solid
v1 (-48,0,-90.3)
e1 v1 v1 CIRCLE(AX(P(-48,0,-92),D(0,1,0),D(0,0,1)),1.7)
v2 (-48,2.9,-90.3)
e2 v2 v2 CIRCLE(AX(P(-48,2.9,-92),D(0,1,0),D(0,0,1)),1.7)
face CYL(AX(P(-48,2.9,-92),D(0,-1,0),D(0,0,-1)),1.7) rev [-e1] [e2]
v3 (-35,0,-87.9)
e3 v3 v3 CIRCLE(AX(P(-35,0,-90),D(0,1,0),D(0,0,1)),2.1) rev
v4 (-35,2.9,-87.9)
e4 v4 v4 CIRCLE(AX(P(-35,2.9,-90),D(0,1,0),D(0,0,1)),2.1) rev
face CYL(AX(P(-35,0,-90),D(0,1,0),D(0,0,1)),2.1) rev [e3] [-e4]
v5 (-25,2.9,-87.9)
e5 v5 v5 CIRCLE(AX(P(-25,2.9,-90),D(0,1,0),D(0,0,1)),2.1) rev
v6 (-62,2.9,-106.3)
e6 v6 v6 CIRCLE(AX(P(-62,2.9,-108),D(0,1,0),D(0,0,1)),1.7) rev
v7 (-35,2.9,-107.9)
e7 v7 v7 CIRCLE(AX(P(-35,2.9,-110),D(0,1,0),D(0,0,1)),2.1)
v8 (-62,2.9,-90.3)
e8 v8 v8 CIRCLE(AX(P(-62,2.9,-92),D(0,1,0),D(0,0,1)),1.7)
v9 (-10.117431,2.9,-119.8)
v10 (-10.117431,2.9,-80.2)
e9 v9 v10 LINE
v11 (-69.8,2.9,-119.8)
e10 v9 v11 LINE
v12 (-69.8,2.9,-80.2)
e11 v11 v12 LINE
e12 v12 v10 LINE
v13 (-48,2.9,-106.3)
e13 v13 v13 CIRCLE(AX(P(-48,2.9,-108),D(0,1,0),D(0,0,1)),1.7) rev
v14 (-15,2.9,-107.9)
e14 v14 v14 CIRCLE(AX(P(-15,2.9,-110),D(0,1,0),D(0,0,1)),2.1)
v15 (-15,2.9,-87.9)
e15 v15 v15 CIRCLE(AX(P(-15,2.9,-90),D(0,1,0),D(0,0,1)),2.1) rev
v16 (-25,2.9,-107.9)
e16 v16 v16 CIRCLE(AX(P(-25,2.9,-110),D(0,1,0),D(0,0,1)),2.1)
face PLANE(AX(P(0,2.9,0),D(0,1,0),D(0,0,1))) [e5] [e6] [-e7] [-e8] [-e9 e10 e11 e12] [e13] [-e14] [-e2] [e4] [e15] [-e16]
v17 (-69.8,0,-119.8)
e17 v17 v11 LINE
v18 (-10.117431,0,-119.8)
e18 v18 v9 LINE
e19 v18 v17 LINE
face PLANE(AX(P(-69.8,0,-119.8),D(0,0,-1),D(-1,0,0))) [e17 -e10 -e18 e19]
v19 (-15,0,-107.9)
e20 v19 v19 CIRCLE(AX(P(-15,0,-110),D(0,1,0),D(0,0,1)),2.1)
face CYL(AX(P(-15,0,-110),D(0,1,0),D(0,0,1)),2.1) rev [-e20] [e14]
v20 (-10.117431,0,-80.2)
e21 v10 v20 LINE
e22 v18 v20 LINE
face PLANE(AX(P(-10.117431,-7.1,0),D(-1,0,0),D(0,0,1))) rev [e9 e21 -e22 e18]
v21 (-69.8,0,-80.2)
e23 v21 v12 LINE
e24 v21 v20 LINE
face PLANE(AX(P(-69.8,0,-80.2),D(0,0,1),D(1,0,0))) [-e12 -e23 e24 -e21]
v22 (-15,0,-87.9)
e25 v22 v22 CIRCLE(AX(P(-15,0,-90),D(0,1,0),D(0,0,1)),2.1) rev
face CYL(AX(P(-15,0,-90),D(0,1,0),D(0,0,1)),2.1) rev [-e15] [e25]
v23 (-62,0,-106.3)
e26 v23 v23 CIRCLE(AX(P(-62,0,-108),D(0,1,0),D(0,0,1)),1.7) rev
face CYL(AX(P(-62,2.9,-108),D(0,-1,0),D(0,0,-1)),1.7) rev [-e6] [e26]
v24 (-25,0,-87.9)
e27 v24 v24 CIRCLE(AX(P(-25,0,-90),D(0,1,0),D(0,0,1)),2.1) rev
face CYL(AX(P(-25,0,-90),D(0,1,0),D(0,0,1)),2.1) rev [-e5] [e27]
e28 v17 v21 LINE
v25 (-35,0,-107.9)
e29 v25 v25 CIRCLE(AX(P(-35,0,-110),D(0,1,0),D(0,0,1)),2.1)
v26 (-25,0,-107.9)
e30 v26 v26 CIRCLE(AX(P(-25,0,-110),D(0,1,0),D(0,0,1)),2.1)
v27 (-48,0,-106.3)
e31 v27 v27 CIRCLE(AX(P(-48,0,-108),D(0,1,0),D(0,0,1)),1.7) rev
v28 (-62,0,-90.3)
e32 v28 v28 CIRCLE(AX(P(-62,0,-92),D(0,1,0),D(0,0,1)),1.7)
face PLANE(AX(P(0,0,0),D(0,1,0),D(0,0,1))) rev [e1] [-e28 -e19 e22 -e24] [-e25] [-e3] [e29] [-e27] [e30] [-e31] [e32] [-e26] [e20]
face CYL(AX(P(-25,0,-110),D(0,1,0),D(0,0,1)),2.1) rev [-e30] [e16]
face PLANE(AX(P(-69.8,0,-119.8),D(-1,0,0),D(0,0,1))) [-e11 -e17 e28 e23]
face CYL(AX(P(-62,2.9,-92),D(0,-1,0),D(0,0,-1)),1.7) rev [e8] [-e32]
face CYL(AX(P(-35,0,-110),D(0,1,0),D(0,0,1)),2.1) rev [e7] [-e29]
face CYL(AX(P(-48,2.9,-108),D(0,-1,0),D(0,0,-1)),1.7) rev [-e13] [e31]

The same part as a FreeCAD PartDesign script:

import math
import FreeCAD as App
import Part
import Sketcher

V = App.Vector


def add_polygon(sketch, points):
    """Adds a closed chain of lines whose ends are joined by coincident constraints."""
    first, n = sketch.GeometryCount, len(points)
    for a, b in zip(points, points[1:] + points[:1]):
        sketch.addGeometry(Part.LineSegment(App.Vector(*a, 0), App.Vector(*b, 0)), False)
    for i in range(n):
        sketch.addConstraint(Sketcher.Constraint("Coincident", first + i, 2, first + (i + 1) % n, 1))

doc = App.newDocument("Part")
body = doc.addObject("PartDesign::Body", "Body")

# Sketch on XZ plane
sketch1 = body.newObject("Sketcher::SketchObject", "Sketch")
sketch1.AttachmentSupport = (doc.getObject("XZ_Plane"), [""])
sketch1.MapMode = "FlatFace"
add_polygon(sketch1, [(-70, -80), (-20, -80), (-20, -120), (-70, -120)])  # lines 0-3
sketch1.addGeometry(Part.ArcOfCircle(Part.Circle(V(-48, -92, 0), V(0, 0, 1), 1.7), math.radians(90), math.radians(360)), False)  # 4
sketch1.addGeometry(Part.ArcOfCircle(Part.Circle(V(-48, -92, 0), V(0, 0, 1), 1.7), math.radians(0), math.radians(90)), False)  # 5
sketch1.addGeometry(Part.ArcOfCircle(Part.Circle(V(-62, -92, 0), V(0, 0, 1), 1.7), math.radians(180), math.radians(360)), False)  # 6
sketch1.addGeometry(Part.ArcOfCircle(Part.Circle(V(-62, -92, 0), V(0, 0, 1), 1.7), math.radians(0), math.radians(90)), False)  # 7
sketch1.addGeometry(Part.ArcOfCircle(Part.Circle(V(-62, -92, 0), V(0, 0, 1), 1.7), math.radians(90), math.radians(180)), False)  # 8
sketch1.addGeometry(Part.Circle(V(-62, -108, 0), V(0, 0, 1), 1.7), False)  # 9
sketch1.addGeometry(Part.Circle(V(-48, -108, 0), V(0, 0, 1), 1.7), False)  # 10
sketch1.addConstraint([
    Sketcher.Constraint("Tangent", 4, 1, 5, 2),
    Sketcher.Constraint("Coincident", 5, 1, 4, 2),
    Sketcher.Constraint("Tangent", 6, 2, 7, 1),
    Sketcher.Constraint("Tangent", 7, 2, 8, 1),
    Sketcher.Constraint("Tangent", 8, 2, 6, 1),
    Sketcher.Constraint("Horizontal", 0),
    Sketcher.Constraint("Vertical", 1),
    Sketcher.Constraint("Horizontal", 2),
    Sketcher.Constraint("Vertical", 3),
    Sketcher.Constraint("Equal", 5, 6),
    Sketcher.Constraint("Equal", 8, 9),
    Sketcher.Constraint("Equal", 9, 10),
    Sketcher.Constraint("Horizontal", 5, 3, 6, 3),
    Sketcher.Constraint("Horizontal", 9, 3, 10, 3),
    Sketcher.Constraint("Horizontal", 8, 3, 5, 1),
    Sketcher.Constraint("Horizontal", 5, 1, 6, 2),
    Sketcher.Constraint("Horizontal", 6, 2, 8, 2),
    Sketcher.Constraint("Vertical", 8, 3, 9, 3),
    Sketcher.Constraint("Vertical", 5, 3, 10, 3),
    Sketcher.Constraint("Vertical", 10, 3, 4, 1),
    Sketcher.Constraint("Vertical", 9, 3, 7, 2),
    Sketcher.Constraint("Diameter", 9, 3.4),
    Sketcher.Constraint("DistanceX", 0, 1, 0, 2, 50.0),
    Sketcher.Constraint("DistanceY", 1, 2, 1, 1, 40.0),
    Sketcher.Constraint("DistanceX", 4, 3, -1, 1, 48.0),
    Sketcher.Constraint("DistanceY", 4, 3, -1, 1, 92.0),
    Sketcher.Constraint("DistanceX", 6, 3, -1, 1, 62.0),
    Sketcher.Constraint("DistanceY", 9, 3, -1, 1, 108.0),
    Sketcher.Constraint("DistanceX", 0, 2, -1, 1, 20.0),
    Sketcher.Constraint("DistanceY", 0, 2, -1, 1, 80.0),
])
pad1 = body.newObject("PartDesign::Pad", "Pad")
pad1.Profile = sketch1
pad1.Length = 2.9
pad1.Reversed = True

# Sketch on XZ plane
sketch2 = body.newObject("Sketcher::SketchObject", "Sketch001")
sketch2.AttachmentSupport = (doc.getObject("XZ_Plane"), [""])
sketch2.MapMode = "FlatFace"
sketch2.AttachmentOffset = App.Placement(V(0, 0, -2.9), App.Rotation())
sketch2.addGeometry([
    Part.Circle(V(-25, -110, 0), V(0, 0, 1), 2.1),
    Part.Circle(V(-25, -90, 0), V(0, 0, 1), 2.1),
    Part.Circle(V(-35, -90, 0), V(0, 0, 1), 2.1),
    Part.Circle(V(-35, -110, 0), V(0, 0, 1), 2.1),
], False)
sketch2.addConstraint([
    Sketcher.Constraint("Equal", 0, 1),
    Sketcher.Constraint("Equal", 1, 2),
    Sketcher.Constraint("Equal", 2, 3),
    Sketcher.Constraint("Horizontal", 1, 3, 2, 3),
    Sketcher.Constraint("Horizontal", 0, 3, 3, 3),
    Sketcher.Constraint("Vertical", 0, 3, 1, 3),
    Sketcher.Constraint("Vertical", 2, 3, 3, 3),
    Sketcher.Constraint("Diameter", 0, 4.2),
    Sketcher.Constraint("DistanceX", 0, 3, -1, 1, 25.0),
    Sketcher.Constraint("DistanceY", 0, 3, -1, 1, 110.0),
    Sketcher.Constraint("DistanceY", 1, 3, -1, 1, 90.0),
    Sketcher.Constraint("DistanceX", 2, 3, -1, 1, 35.0),
])
pocket1 = body.newObject("PartDesign::Pocket", "Pocket")
pocket1.Profile = sketch2
pocket1.Length = 2.9
pocket1.Reversed = True

# Sketch on XZ plane
sketch3 = body.newObject("Sketcher::SketchObject", "Sketch002")
sketch3.AttachmentSupport = (doc.getObject("XZ_Plane"), [""])
sketch3.MapMode = "FlatFace"
sketch3.AttachmentOffset = App.Placement(V(0, 0, -2.9), App.Rotation())
add_polygon(sketch3, [(-20, -120), (-20, -80), (0, -80), (0, -120)])  # lines 0-3
sketch3.addGeometry(Part.Circle(V(-15, -90, 0), V(0, 0, 1), 2.1), False)  # 4
sketch3.addGeometry(Part.Circle(V(-5, -90, 0), V(0, 0, 1), 2.1), False)  # 5
sketch3.addGeometry(Part.Circle(V(-15, -110, 0), V(0, 0, 1), 2.1), False)  # 6
sketch3.addGeometry(Part.Circle(V(-5, -110, 0), V(0, 0, 1), 2.1), False)  # 7
sketch3.addConstraint([
    Sketcher.Constraint("Vertical", 0),
    Sketcher.Constraint("Horizontal", 1),
    Sketcher.Constraint("Vertical", 2),
    Sketcher.Constraint("Horizontal", 3),
    Sketcher.Constraint("Equal", 4, 5),
    Sketcher.Constraint("Equal", 5, 6),
    Sketcher.Constraint("Equal", 6, 7),
    Sketcher.Constraint("PointOnObject", 1, 2, -2),
    Sketcher.Constraint("Horizontal", 4, 3, 5, 3),
    Sketcher.Constraint("Horizontal", 6, 3, 7, 3),
    Sketcher.Constraint("Vertical", 4, 3, 6, 3),
    Sketcher.Constraint("Vertical", 5, 3, 7, 3),
    Sketcher.Constraint("Diameter", 4, 4.2),
    Sketcher.Constraint("DistanceX", 1, 1, 1, 2, 20.0),
    Sketcher.Constraint("DistanceY", 0, 1, 0, 2, 40.0),
    Sketcher.Constraint("DistanceX", 4, 3, -1, 1, 15.0),
    Sketcher.Constraint("DistanceY", 4, 3, -1, 1, 90.0),
    Sketcher.Constraint("DistanceX", 5, 3, -1, 1, 5.0),
    Sketcher.Constraint("DistanceY", 6, 3, -1, 1, 110.0),
    Sketcher.Constraint("DistanceY", 0, 2, -1, 1, 80.0),
])
pad2 = body.newObject("PartDesign::Pad", "Pad001")
pad2.Profile = sketch3
pad2.Length = 2.9

# Sketch on XZ plane
sketch4 = body.newObject("Sketcher::SketchObject", "Sketch003")
sketch4.AttachmentSupport = (doc.getObject("XZ_Plane"), [""])
sketch4.MapMode = "FlatFace"
sketch4.AttachmentOffset = App.Placement(V(0, 0, -2.9), App.Rotation())
add_polygon(sketch4, [(-70, -120), (-70, -80), (0, -80), (0, -120)])  # lines 0-3
add_polygon(sketch4, [(0, -80), (-70, -80), (-70, -120), (0, -120)])  # lines 4-7
sketch4.addConstraint([
    Sketcher.Constraint("Vertical", 0),
    Sketcher.Constraint("Horizontal", 1),
    Sketcher.Constraint("Vertical", 2),
    Sketcher.Constraint("Horizontal", 3),
    Sketcher.Constraint("Horizontal", 4),
    Sketcher.Constraint("Vertical", 5),
    Sketcher.Constraint("Horizontal", 6),
    Sketcher.Constraint("Vertical", 7),
    Sketcher.Constraint("PointOnObject", 1, 2, -2),
    Sketcher.Constraint("DistanceX", 1, 1, 1, 2, 70.0),
    Sketcher.Constraint("DistanceY", 0, 1, 0, 2, 40.0),
    Sketcher.Constraint("DistanceX", 4, 2, 4, 1, 69.6),
    Sketcher.Constraint("DistanceY", 5, 2, 5, 1, 39.6),
    Sketcher.Constraint("DistanceY", 0, 2, -1, 1, 80.0),
    Sketcher.Constraint("DistanceX", 4, 2, -1, 1, 69.8),
    Sketcher.Constraint("DistanceY", 4, 2, -1, 1, 80.2),
])
pocket2 = body.newObject("PartDesign::Pocket", "Pocket001")
pocket2.Profile = sketch4
pocket2.Length = 2.9
pocket2.Reversed = True

# Sketch on XZ plane
sketch5 = body.newObject("Sketcher::SketchObject", "Sketch004")
sketch5.AttachmentSupport = (doc.getObject("XZ_Plane"), [""])
sketch5.MapMode = "FlatFace"
sketch5.AttachmentOffset = App.Placement(V(0, 0, -2.9), App.Rotation())
add_polygon(sketch5, [(-10.1, -119.8), (-10.1, -80.2), (-0.2, -80.2), (-0.2, -119.8)])  # lines 0-3
sketch5.addGeometry(Part.Circle(V(-5, -90, 0), V(0, 0, 1), 2.1), False)  # 4
sketch5.addGeometry(Part.Circle(V(-5, -110, 0), V(0, 0, 1), 2.1), False)  # 5
sketch5.addConstraint([
    Sketcher.Constraint("Vertical", 0),
    Sketcher.Constraint("Horizontal", 1),
    Sketcher.Constraint("Vertical", 2),
    Sketcher.Constraint("Horizontal", 3),
    Sketcher.Constraint("Equal", 4, 5),
    Sketcher.Constraint("Vertical", 4, 3, 5, 3),
    Sketcher.Constraint("Diameter", 4, 4.2),
    Sketcher.Constraint("DistanceY", 0, 1, 0, 2, 39.6),
    Sketcher.Constraint("DistanceX", 4, 3, -1, 1, 5.0),
    Sketcher.Constraint("DistanceY", 4, 3, -1, 1, 90.0),
    Sketcher.Constraint("DistanceY", 5, 3, -1, 1, 110.0),
    Sketcher.Constraint("DistanceY", 0, 2, -1, 1, 80.2),
    Sketcher.Constraint("DistanceX", 1, 2, -1, 1, 0.2),
    Sketcher.Constraint("DistanceX", 1, 1, 1, 2, 9.917431),
])
pocket3 = body.newObject("PartDesign::Pocket", "Pocket002")
pocket3.Profile = sketch5
pocket3.Length = 10
pocket3.Reversed = True

doc.recompute()
